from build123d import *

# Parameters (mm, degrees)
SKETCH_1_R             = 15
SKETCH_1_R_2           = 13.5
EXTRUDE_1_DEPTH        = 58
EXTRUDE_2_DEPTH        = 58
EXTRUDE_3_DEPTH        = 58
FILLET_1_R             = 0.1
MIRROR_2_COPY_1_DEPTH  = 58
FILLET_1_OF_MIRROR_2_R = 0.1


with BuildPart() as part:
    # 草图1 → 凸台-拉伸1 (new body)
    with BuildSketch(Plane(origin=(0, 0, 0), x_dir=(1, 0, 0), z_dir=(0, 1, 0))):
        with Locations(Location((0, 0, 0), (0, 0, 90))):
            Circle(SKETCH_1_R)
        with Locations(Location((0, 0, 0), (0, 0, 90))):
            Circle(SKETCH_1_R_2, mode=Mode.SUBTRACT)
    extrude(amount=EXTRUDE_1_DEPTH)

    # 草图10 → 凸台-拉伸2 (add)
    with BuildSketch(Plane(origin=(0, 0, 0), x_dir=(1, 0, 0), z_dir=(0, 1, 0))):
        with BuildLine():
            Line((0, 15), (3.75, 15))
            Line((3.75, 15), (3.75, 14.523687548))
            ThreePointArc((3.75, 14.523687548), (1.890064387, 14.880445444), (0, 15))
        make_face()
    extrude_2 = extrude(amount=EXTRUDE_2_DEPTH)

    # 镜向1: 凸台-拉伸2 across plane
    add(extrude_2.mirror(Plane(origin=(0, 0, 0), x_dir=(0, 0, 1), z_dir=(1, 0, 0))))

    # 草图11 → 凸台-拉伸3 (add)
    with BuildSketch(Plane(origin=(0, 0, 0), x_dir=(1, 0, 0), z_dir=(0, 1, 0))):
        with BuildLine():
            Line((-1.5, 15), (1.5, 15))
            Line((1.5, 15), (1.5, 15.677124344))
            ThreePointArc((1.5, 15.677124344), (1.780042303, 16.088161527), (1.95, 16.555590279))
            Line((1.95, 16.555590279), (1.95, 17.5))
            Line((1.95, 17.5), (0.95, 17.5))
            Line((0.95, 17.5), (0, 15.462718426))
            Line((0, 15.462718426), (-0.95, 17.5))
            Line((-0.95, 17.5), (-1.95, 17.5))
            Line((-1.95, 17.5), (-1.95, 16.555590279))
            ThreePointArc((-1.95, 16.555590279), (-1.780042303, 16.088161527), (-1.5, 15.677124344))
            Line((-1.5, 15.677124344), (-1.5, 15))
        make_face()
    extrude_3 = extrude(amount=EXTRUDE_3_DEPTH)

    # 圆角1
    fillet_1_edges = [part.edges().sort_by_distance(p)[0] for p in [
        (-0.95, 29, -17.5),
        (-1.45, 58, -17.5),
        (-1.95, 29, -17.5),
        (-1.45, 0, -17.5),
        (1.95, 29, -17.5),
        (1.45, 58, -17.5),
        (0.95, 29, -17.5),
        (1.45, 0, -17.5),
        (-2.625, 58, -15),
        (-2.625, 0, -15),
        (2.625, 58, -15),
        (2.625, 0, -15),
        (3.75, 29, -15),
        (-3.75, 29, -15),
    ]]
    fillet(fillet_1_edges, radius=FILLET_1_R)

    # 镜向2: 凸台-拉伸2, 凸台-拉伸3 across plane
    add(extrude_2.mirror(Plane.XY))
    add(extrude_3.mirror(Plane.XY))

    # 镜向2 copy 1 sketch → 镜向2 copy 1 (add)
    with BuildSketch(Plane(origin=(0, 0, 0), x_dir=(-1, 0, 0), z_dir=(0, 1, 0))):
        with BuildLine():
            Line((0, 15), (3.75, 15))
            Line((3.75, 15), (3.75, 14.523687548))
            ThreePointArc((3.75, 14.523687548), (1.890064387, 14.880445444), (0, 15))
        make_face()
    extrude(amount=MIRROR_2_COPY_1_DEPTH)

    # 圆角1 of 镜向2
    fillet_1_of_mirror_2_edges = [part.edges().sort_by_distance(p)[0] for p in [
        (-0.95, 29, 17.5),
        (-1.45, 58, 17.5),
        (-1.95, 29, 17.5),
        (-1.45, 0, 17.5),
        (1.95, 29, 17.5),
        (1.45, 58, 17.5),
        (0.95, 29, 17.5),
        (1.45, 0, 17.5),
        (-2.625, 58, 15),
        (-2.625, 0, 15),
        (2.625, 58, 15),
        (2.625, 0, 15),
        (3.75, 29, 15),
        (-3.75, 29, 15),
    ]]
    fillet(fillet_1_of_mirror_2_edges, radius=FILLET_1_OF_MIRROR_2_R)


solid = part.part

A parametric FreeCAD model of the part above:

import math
import FreeCAD as App
import Part
import Sketcher

V = App.Vector
Q = App.Units.Quantity


def edges_at(feature, points):
    """Names of the edges that pass closest to the given points."""
    edges = feature.Shape.Edges
    near = lambda p: min(range(len(edges)), key=lambda i: edges[i].distToShape(Part.Vertex(*p))[0])
    return sorted({f"Edge{near(p) + 1}" for p in points})

doc = App.newDocument("Part")
params = doc.addObject("Spreadsheet::Sheet", "Params")
for row, (alias, value) in enumerate([
    ("sketch1_diameter", "30 mm"),
    ("sketch1_diameter2", "27 mm"),
    ("pad1_length", "58 mm"),
    ("sketch2_radius", "15 mm"),
    ("sketch2_width", "3.75 mm"),
    ("pad2_length", "58 mm"),
    ("sketch3_radius", "2 mm"),
    ("sketch3_width", "3 mm"),
    ("sketch3_width2", "1 mm"),
    ("pad3_length", "58 mm"),
    ("fillet_radius", "0.1 mm"),
    ("sketch4_radius", "15 mm"),
    ("sketch4_width", "3.75 mm"),
    ("pad4_length", "58 mm"),
    ("fillet2_radius", "0.1 mm"),
], start=1):
    params.set(f"A{row}", alias)
    params.set(f"B{row}", "=" + value)
    params.setAlias(f"B{row}", alias)

body = doc.addObject("PartDesign::Body", "Body")

# Sketch on XZ plane
sketch1 = body.newObject("Sketcher::SketchObject", "Sketch")
sketch1.AttachmentSupport = (doc.getObject("XZ_Plane"), [""])
sketch1.MapMode = "FlatFace"
sketch1.addGeometry([
    Part.Circle(V(0, 0, 0), V(0, 0, 1), 15),
    Part.Circle(V(0, 0, 0), V(0, 0, 1), 14),
], False)
sketch1.addConstraint([
    Sketcher.Constraint("Coincident", 0, 3, -1, 1),
    Sketcher.Constraint("Coincident", 1, 3, -1, 1),
    Sketcher.Constraint("Diameter", 0, 30.0),
    Sketcher.Constraint("Diameter", 1, 27.0),
])
sketch1.setExpression("Constraints[2]", "Params.sketch1_diameter")
sketch1.setExpression("Constraints[3]", "Params.sketch1_diameter2")
pad1 = body.newObject("PartDesign::Pad", "Pad")
pad1.Profile = sketch1
pad1.setExpression("Length", "Params.pad1_length")
pad1.Reversed = True

# Sketch on XZ plane
sketch2 = body.newObject("Sketcher::SketchObject", "Sketch001")
sketch2.AttachmentSupport = (doc.getObject("XZ_Plane"), [""])
sketch2.MapMode = "FlatFace"
sketch2.addGeometry([
    Part.LineSegment(V(3.75, -15, 0), V(0, -15, 0)),
    Part.ArcOfCircle(Part.Circle(V(0, 0, 0), V(0, 0, 1), 15), math.radians(-90), math.radians(-75.52)),
    Part.LineSegment(V(3.75, -14.52, 0), V(3.75, -15, 0)),
], False)
sketch2.addConstraint([
    Sketcher.Constraint("Tangent", 0, 2, 1, 1),
    Sketcher.Constraint("Coincident", 1, 2, 2, 1),
    Sketcher.Constraint("Coincident", 2, 2, 0, 1),
    Sketcher.Constraint("Horizontal", 0),
    Sketcher.Constraint("Vertical", 2),
    Sketcher.Constraint("Coincident", 1, 3, -1, 1),
    Sketcher.Constraint("Radius", 1, 15.0),
    Sketcher.Constraint("DistanceX", 0, 2, 0, 1, 3.75),
])
sketch2.setExpression("Constraints[6]", "Params.sketch2_radius")
sketch2.setExpression("Constraints[7]", "Params.sketch2_width")
pad2 = body.newObject("PartDesign::Pad", "Pad001")
pad2.Profile = sketch2
pad2.setExpression("Length", "Params.pad2_length")
pad2.Reversed = True
doc.recompute()

mirrored = body.newObject("PartDesign::Mirrored", "Mirrored")
mirrored.Originals = [pad2]
mirrored.MirrorPlane = (doc.getObject("YZ_Plane"), [""])
body.Tip = mirrored

# Sketch on XZ plane
sketch3 = body.newObject("Sketcher::SketchObject", "Sketch002")
sketch3.AttachmentSupport = (doc.getObject("XZ_Plane"), [""])
sketch3.MapMode = "FlatFace"
sketch3.addGeometry([
    Part.LineSegment(V(-1.5, -15, 0), V(1.5, -15, 0)),  # 0
    Part.LineSegment(V(1.5, -15, 0), V(1.5, -15.7, 0)),  # 1
    Part.ArcOfCircle(Part.Circle(V(0, -17, 0), V(0, 0, 1), 2), math.radians(13), math.radians(41)),  # 2
    Part.LineSegment(V(1.9, -16.6, 0), V(1.9, -17.5, 0)),  # 3
    Part.LineSegment(V(1.9, -17.5, 0), V(0.9, -17.5, 0)),  # 4
    Part.LineSegment(V(0.9, -17.5, 0), V(0, -15.5, 0)),  # 5
    Part.LineSegment(V(0, -15.5, 0), V(-0.9, -17.5, 0)),  # 6
    Part.LineSegment(V(-0.9, -17.5, 0), V(-1.9, -17.5, 0)),  # 7
    Part.LineSegment(V(-1.9, -17.5, 0), V(-1.9, -16.6, 0)),  # 8
    Part.ArcOfCircle(Part.Circle(V(0, -17, 0), V(0, 0, 1), 2), math.radians(139), math.radians(167)),  # 9
    Part.LineSegment(V(-1.5, -15.7, 0), V(-1.5, -15, 0)),  # 10
], False)
sketch3.addConstraint([
    Sketcher.Constraint("Coincident", 0, 2, 1, 1),
    Sketcher.Constraint("Coincident", 1, 2, 2, 2),
    Sketcher.Constraint("Coincident", 2, 1, 3, 1),
    Sketcher.Constraint("Coincident", 3, 2, 4, 1),
    Sketcher.Constraint("Coincident", 4, 2, 5, 1),
    Sketcher.Constraint("Coincident", 5, 2, 6, 1),
    Sketcher.Constraint("Coincident", 6, 2, 7, 1),
    Sketcher.Constraint("Coincident", 7, 2, 8, 1),
    Sketcher.Constraint("Coincident", 8, 2, 9, 2),
    Sketcher.Constraint("Coincident", 9, 1, 10, 1),
    Sketcher.Constraint("Coincident", 10, 2, 0, 1),
    Sketcher.Constraint("Horizontal", 0),
    Sketcher.Constraint("Vertical", 1),
    Sketcher.Constraint("Vertical", 3),
    Sketcher.Constraint("Horizontal", 4),
    Sketcher.Constraint("Horizontal", 7),
    Sketcher.Constraint("Vertical", 8),
    Sketcher.Constraint("Vertical", 10),
    Sketcher.Constraint("Coincident", 9, 3, 2, 3),
    Sketcher.Constraint("Equal", 2, 9),
    Sketcher.Constraint("Symmetric", 4, 2, 6, 2, -2),
    Sketcher.Constraint("Symmetric", 2, 1, 8, 2, -2),
    Sketcher.Constraint("PointOnObject", 5, 2, -2),
    Sketcher.Constraint("Horizontal", 1, 2, 9, 1),
    Sketcher.Constraint("Radius", 2, 2.0),
    Sketcher.Constraint("DistanceX", 0, 1, 0, 2, 3.0),
    Sketcher.Constraint("DistanceX", 4, 2, 4, 1, 1.0),
    Sketcher.Constraint("Angle", 5, Q("115 deg")),
    Sketcher.Constraint("DistanceY", 2, 3, -1, 1, 17.0),
    Sketcher.Constraint("DistanceY", 0, 2, -1, 1, 15.0),
    Sketcher.Constraint("DistanceY", 3, 2, -1, 1, 17.5),
    Sketcher.Constraint("DistanceX", 6, 2, 4, 2, 1.9),
])
sketch3.setExpression("Constraints[24]", "Params.sketch3_radius")
sketch3.setExpression("Constraints[25]", "Params.sketch3_width")
sketch3.setExpression("Constraints[26]", "Params.sketch3_width2")
pad3 = body.newObject("PartDesign::Pad", "Pad002")
pad3.Profile = sketch3
pad3.setExpression("Length", "Params.pad3_length")
pad3.Reversed = True
doc.recompute()

fillet = body.newObject("PartDesign::Fillet", "Fillet")
fillet.Base = (pad3, edges_at(pad3, [
    (-0.95, 29, -17.5),
    (-1.45, 58, -17.5),
    (-1.95, 29, -17.5),
    (-1.45, 0, -17.5),
    (1.95, 29, -17.5),
    (1.45, 58, -17.5),
    (0.95, 29, -17.5),
    (1.45, 0, -17.5),
    (-2.625, 58, -15),
    (-2.625, 0, -15),
    (2.625, 58, -15),
    (2.625, 0, -15),
    (3.75, 29, -15),
    (-3.75, 29, -15),
]))
fillet.setExpression("Radius", "Params.fillet_radius")
doc.recompute()

mirrored2 = body.newObject("PartDesign::Mirrored", "Mirrored001")
mirrored2.Originals = [pad2, pad3]
mirrored2.MirrorPlane = (doc.getObject("XY_Plane"), [""])
body.Tip = mirrored2

# Sketch on XZ plane
sketch4 = body.newObject("Sketcher::SketchObject", "Sketch003")
sketch4.AttachmentSupport = (doc.getObject("XZ_Plane"), [""])
sketch4.MapMode = "FlatFace"
sketch4.addGeometry([
    Part.LineSegment(V(-3.75, 15, 0), V(0, 15, 0)),
    Part.ArcOfCircle(Part.Circle(V(0, 0, 0), V(0, 0, 1), 15), math.radians(90), math.radians(104.48)),
    Part.LineSegment(V(-3.75, 14.52, 0), V(-3.75, 15, 0)),
], False)
sketch4.addConstraint([
    Sketcher.Constraint("Tangent", 0, 2, 1, 1),
    Sketcher.Constraint("Coincident", 1, 2, 2, 1),
    Sketcher.Constraint("Coincident", 2, 2, 0, 1),
    Sketcher.Constraint("Horizontal", 0),
    Sketcher.Constraint("Vertical", 2),
    Sketcher.Constraint("Coincident", 1, 3, -1, 1),
    Sketcher.Constraint("Radius", 1, 15.0),
    Sketcher.Constraint("DistanceX", 0, 1, 0, 2, 3.75),
])
sketch4.setExpression("Constraints[6]", "Params.sketch4_radius")
sketch4.setExpression("Constraints[7]", "Params.sketch4_width")
pad4 = body.newObject("PartDesign::Pad", "Pad003")
pad4.Profile = sketch4
pad4.setExpression("Length", "Params.pad4_length")
pad4.Reversed = True
doc.recompute()

fillet2 = body.newObject("PartDesign::Fillet", "Fillet001")
fillet2.Base = (pad4, edges_at(pad4, [
    (-0.95, 29, 17.5),
    (-1.45, 58, 17.5),
    (-1.95, 29, 17.5),
    (-1.45, 0, 17.5),
    (1.95, 29, 17.5),
    (1.45, 58, 17.5),
    (0.95, 29, 17.5),
    (1.45, 0, 17.5),
    (-2.625, 58, 15),
    (-2.625, 0, 15),
    (2.625, 58, 15),
    (2.625, 0, 15),
    (3.75, 29, 15),
    (-3.75, 29, 15),
]))
fillet2.setExpression("Radius", "Params.fillet2_radius")

doc.recompute()
